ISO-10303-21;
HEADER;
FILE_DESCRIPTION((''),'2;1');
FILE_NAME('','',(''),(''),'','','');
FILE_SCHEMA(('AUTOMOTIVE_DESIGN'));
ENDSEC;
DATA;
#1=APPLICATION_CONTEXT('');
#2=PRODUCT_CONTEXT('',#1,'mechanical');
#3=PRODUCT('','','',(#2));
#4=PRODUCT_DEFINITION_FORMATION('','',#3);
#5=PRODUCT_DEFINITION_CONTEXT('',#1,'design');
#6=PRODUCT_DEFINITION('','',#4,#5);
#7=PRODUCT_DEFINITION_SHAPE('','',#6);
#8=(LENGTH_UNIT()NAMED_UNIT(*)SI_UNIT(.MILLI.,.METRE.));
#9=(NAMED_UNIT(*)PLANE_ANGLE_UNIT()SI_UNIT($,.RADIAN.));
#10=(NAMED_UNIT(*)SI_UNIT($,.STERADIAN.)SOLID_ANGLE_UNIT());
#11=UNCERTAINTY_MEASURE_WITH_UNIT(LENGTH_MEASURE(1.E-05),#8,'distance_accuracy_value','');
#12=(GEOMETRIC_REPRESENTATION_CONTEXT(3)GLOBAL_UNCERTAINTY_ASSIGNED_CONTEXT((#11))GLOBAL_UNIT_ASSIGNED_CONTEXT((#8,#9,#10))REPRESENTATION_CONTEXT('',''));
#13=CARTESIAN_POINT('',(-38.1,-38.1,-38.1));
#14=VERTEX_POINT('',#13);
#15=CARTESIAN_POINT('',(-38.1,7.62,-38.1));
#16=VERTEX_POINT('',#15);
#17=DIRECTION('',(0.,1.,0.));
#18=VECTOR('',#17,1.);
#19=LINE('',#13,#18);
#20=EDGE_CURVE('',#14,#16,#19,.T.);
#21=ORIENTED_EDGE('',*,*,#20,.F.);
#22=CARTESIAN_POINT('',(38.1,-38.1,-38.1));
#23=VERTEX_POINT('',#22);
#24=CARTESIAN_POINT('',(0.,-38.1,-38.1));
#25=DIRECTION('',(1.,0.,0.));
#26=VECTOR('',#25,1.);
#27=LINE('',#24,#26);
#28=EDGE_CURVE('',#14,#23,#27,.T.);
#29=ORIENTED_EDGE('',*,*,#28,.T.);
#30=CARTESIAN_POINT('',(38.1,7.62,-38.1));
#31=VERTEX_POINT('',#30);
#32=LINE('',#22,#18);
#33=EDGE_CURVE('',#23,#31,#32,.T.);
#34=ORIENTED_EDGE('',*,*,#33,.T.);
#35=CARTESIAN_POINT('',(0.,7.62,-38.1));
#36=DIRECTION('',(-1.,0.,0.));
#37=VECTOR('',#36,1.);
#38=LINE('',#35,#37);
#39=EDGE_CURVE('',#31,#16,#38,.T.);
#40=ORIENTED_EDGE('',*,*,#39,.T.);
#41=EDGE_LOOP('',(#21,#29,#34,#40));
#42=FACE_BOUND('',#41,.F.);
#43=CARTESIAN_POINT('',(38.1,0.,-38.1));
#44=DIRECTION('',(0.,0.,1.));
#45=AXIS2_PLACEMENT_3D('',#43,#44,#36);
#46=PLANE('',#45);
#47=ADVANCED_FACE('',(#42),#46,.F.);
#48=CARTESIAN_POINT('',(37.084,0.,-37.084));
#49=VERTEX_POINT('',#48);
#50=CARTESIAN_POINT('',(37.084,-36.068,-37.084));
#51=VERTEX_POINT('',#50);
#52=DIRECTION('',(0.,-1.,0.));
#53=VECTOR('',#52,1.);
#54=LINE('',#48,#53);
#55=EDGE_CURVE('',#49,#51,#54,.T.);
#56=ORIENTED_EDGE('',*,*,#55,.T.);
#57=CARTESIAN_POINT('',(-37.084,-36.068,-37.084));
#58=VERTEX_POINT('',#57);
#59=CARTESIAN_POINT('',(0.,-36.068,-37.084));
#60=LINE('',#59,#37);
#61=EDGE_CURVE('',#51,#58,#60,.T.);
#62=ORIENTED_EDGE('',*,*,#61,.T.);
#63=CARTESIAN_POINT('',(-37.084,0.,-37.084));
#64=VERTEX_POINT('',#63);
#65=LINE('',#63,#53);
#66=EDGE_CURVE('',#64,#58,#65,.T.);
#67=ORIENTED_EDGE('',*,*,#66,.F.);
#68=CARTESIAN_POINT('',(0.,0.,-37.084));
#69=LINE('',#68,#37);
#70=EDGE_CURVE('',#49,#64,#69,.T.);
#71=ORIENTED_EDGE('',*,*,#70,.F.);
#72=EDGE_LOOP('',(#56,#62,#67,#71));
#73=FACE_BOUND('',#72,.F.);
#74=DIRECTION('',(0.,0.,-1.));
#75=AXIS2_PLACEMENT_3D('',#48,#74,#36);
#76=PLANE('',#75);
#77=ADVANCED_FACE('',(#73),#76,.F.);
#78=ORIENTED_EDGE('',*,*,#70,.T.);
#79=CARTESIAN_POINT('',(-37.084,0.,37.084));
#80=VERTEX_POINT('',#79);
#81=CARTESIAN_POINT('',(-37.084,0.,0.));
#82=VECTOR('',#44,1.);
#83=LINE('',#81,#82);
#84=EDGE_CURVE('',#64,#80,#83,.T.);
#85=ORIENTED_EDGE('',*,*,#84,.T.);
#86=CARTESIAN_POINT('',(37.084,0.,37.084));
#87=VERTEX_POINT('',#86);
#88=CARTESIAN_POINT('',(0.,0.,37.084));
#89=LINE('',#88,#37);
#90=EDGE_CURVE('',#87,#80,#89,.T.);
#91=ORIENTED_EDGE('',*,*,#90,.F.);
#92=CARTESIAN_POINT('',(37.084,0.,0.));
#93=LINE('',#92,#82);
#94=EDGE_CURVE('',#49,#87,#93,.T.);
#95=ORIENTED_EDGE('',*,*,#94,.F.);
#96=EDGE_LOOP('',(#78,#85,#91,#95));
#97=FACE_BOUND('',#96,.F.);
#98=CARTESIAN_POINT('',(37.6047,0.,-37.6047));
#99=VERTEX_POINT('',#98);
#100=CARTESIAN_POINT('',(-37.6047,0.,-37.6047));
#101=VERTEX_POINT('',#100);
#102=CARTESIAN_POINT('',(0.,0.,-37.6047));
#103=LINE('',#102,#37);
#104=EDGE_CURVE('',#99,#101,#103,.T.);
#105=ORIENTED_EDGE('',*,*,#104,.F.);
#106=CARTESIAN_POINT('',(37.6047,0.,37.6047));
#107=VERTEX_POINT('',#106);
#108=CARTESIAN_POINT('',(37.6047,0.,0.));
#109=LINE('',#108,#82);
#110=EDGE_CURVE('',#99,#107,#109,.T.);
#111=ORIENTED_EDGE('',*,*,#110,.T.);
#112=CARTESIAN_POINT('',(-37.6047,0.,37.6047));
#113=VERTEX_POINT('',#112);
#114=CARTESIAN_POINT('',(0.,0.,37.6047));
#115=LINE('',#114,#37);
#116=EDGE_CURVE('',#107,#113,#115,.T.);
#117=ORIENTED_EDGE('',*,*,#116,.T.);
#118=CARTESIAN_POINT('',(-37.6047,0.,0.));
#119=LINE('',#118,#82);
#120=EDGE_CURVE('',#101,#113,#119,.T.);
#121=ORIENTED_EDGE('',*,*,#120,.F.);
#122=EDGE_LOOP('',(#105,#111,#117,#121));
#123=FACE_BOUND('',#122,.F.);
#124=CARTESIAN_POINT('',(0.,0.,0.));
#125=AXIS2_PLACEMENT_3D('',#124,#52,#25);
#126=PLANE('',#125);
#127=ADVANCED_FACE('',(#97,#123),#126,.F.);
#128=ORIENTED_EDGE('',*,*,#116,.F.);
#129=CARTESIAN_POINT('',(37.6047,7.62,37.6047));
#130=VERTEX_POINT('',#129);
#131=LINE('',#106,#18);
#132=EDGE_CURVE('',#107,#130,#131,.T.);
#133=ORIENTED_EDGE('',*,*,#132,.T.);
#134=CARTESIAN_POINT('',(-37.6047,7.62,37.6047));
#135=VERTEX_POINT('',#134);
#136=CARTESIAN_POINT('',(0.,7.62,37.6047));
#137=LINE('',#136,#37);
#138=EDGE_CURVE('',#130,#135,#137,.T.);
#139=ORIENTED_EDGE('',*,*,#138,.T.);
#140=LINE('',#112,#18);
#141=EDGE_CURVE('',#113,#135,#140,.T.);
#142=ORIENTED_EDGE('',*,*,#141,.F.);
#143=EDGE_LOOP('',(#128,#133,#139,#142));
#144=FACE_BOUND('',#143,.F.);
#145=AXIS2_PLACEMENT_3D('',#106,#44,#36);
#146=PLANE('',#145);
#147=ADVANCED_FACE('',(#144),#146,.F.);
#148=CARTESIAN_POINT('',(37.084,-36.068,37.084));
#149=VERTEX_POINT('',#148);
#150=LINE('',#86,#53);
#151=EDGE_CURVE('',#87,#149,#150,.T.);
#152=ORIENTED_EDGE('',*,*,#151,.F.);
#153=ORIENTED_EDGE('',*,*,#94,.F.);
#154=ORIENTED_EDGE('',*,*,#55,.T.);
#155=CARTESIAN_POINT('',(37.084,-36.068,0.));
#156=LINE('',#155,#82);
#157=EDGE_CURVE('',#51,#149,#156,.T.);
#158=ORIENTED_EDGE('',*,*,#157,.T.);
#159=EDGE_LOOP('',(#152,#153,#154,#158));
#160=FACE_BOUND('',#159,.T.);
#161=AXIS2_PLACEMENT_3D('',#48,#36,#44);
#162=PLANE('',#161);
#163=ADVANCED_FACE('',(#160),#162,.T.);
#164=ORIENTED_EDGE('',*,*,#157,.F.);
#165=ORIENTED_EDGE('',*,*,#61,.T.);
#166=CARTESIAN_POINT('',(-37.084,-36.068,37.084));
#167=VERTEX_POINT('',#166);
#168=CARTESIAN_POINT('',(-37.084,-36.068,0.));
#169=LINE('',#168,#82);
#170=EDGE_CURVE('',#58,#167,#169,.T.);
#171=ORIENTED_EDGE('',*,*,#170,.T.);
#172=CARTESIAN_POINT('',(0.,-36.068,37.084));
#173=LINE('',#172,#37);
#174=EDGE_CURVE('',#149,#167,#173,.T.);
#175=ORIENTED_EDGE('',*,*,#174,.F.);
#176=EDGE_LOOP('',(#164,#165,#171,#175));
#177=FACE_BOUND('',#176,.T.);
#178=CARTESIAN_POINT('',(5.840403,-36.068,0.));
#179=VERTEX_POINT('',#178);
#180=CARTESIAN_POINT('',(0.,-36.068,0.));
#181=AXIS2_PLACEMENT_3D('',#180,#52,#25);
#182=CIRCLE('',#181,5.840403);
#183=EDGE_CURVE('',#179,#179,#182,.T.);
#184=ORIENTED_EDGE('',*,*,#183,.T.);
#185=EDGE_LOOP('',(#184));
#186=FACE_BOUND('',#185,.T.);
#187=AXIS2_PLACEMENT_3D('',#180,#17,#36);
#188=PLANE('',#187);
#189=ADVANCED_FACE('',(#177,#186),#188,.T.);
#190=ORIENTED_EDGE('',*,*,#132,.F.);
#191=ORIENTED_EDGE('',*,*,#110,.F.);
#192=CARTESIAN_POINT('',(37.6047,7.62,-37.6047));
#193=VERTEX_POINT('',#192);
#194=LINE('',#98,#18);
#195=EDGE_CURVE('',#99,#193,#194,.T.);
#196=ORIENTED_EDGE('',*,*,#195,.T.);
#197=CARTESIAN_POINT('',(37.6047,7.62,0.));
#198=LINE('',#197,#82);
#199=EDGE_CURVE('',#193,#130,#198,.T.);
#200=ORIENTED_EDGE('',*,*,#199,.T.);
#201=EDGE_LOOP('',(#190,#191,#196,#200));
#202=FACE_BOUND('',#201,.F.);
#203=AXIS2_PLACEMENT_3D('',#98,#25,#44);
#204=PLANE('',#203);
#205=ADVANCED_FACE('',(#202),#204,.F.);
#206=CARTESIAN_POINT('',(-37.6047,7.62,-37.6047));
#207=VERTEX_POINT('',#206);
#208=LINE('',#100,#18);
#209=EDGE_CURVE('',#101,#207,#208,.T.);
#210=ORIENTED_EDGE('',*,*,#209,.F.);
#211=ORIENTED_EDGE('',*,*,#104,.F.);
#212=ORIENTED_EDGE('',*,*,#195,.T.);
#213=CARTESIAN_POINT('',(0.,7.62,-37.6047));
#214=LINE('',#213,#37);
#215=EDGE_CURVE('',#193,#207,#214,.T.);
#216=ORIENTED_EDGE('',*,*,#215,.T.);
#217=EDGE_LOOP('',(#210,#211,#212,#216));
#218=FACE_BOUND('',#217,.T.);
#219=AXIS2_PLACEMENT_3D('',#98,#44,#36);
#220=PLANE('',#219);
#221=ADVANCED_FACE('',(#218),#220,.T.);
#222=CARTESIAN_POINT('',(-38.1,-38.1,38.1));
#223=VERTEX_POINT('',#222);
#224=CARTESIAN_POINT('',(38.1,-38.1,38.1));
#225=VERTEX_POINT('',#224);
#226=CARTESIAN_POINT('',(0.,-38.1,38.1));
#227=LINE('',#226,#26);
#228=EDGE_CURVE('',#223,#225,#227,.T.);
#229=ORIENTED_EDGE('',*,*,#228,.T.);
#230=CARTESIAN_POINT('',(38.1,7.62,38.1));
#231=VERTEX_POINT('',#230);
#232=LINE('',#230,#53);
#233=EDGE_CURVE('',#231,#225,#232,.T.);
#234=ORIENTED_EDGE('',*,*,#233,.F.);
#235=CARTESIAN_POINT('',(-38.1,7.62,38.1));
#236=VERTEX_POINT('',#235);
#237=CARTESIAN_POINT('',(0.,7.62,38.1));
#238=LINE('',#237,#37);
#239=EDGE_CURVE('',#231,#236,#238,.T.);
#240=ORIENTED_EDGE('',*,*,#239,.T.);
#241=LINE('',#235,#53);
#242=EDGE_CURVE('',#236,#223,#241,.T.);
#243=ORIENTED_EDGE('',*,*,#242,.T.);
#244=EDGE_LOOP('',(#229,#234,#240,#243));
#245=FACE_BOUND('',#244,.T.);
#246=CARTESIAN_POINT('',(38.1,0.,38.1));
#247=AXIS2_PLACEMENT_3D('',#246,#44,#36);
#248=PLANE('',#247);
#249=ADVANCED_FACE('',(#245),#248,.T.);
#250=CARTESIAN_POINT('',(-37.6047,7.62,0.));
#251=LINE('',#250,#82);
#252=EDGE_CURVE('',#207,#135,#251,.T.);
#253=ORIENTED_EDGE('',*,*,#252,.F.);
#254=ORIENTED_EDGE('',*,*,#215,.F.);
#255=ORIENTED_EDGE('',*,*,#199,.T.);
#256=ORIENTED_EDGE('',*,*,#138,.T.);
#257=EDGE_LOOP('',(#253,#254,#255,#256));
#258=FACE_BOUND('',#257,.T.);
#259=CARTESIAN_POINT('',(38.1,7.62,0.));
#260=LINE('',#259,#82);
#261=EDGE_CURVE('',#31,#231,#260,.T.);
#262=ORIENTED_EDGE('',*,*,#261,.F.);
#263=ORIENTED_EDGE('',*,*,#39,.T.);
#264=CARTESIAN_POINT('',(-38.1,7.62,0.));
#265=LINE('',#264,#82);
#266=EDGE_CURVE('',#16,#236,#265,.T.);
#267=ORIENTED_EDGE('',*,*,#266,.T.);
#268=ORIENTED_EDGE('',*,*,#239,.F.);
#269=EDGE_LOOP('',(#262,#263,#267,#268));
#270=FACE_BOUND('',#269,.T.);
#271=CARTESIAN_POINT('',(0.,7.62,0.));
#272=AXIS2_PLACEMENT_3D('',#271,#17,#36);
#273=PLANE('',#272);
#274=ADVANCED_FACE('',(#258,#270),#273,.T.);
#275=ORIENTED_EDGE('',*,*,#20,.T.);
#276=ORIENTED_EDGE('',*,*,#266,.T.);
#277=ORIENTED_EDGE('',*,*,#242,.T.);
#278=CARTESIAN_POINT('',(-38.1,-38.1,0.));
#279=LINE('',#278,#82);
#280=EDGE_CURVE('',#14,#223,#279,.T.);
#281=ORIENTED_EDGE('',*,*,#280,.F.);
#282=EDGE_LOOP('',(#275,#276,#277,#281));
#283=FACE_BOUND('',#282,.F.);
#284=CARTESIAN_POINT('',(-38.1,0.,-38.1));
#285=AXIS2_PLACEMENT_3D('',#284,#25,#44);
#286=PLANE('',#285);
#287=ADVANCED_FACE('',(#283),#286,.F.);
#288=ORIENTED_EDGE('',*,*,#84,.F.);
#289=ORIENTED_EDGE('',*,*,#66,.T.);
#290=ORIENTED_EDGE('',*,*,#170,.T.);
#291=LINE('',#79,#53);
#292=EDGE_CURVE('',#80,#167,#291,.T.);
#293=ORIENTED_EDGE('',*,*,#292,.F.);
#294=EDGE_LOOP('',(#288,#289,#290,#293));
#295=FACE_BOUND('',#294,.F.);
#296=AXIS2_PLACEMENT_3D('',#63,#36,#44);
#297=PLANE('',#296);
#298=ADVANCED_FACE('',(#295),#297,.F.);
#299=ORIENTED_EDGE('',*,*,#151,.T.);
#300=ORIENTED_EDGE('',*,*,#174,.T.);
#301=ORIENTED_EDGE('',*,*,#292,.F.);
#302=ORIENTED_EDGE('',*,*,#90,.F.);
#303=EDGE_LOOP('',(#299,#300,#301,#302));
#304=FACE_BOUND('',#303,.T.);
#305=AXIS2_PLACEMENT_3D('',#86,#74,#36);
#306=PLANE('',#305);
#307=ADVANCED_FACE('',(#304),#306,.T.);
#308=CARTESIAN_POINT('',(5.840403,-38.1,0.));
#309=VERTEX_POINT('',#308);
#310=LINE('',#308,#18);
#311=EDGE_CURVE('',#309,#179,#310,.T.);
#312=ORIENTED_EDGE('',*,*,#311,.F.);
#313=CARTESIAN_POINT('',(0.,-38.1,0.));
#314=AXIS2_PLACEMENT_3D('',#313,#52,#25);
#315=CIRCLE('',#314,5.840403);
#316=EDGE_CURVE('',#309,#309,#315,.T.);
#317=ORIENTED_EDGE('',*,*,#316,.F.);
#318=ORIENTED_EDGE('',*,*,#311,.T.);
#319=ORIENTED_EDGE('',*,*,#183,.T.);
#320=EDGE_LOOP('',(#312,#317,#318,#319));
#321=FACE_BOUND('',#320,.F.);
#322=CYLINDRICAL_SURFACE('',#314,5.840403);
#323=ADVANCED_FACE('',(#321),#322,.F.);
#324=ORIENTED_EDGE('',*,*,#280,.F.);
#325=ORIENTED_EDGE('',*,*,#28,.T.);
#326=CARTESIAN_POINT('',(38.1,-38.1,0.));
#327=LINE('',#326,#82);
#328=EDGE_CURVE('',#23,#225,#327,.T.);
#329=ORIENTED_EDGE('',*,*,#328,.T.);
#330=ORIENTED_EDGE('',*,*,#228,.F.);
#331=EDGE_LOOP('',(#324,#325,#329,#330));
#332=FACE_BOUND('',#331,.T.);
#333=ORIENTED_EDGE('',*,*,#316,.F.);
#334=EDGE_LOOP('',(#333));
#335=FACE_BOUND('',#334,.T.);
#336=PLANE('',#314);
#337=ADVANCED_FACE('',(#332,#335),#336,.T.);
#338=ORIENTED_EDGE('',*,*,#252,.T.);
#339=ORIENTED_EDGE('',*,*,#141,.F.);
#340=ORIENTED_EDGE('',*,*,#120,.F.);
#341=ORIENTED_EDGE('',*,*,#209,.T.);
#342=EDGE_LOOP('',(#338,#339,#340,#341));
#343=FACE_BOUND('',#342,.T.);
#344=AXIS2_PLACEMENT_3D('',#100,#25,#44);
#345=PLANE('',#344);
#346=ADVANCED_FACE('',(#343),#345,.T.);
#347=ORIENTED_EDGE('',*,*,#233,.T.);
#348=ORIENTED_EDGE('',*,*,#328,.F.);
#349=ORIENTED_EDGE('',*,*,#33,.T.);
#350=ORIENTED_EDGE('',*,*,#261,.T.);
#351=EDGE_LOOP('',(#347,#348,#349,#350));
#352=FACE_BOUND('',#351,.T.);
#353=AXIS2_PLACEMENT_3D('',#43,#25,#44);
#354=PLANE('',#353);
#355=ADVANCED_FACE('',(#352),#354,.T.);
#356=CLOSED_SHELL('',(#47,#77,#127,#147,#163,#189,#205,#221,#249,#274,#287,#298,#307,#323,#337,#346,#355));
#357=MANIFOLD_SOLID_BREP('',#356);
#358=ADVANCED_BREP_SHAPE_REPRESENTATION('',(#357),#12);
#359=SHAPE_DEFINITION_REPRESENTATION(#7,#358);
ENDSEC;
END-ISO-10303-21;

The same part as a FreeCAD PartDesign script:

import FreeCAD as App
import Part
import Sketcher
from FreeCAD import Vector
Q = App.Units.Quantity


def add_polygon(sketch, points):
    """Adds a closed chain of lines whose ends are joined by coincident constraints."""
    first, n = sketch.GeometryCount, len(points)
    for a, b in zip(points, points[1:] + points[:1]):
        sketch.addGeometry(Part.LineSegment(App.Vector(*a, 0), App.Vector(*b, 0)), False)
    for i in range(n):
        sketch.addConstraint(Sketcher.Constraint("Coincident", first + i, 2, first + (i + 1) % n, 1))

doc = App.newDocument("Part")
params = doc.addObject("Spreadsheet::Sheet", "Params")
for row, (alias, value) in enumerate([
    ("sketch1_width", "3 in"),
    ("pad1_length", "1.5 in"),
    ("sketch2_width", "2.92 in"),
    ("pocket1_length", "1.42 in"),
    ("sketch3_width", "3 in"),
    ("sketch3_width2", "2.961 in"),
    ("pad2_length", "0.3 in"),
    ("pocket2_length", "0.5 in"),
], start=1):
    params.set(f"A{row}", alias)
    params.set(f"B{row}", "=" + value)
    params.setAlias(f"B{row}", alias)

body = doc.addObject("PartDesign::Body", "Body")

sketch1 = body.newObject("Sketcher::SketchObject", "Sketch")
sketch1.AttachmentSupport = (doc.getObject("XZ_Plane"), [""])
sketch1.MapMode = "FlatFace"
add_polygon(sketch1, [(-38.1, 38.1), (-38.1, -38.1), (38.1, -38.1), (38.1, 38.1)])
sketch1.addConstraint(Sketcher.Constraint("Vertical", 0))
sketch1.addConstraint(Sketcher.Constraint("Horizontal", 1))
sketch1.addConstraint(Sketcher.Constraint("Vertical", 2))
sketch1.addConstraint(Sketcher.Constraint("Horizontal", 3))
sketch1.addConstraint(Sketcher.Constraint("Symmetric", 0, 2, 2, 2, -1, 1))
sketch1.addConstraint(Sketcher.Constraint("Equal", 3, 0))
sketch1.addConstraint(Sketcher.Constraint("DistanceX", 1, 1, 1, 2, Q("3 in")))
sketch1.setExpression("Constraints[10]", "Params.sketch1_width")
pad1 = body.newObject("PartDesign::Pad", "Pad")
pad1.Profile = sketch1
pad1.setExpression("Length", "Params.pad1_length")

sketch2 = body.newObject("Sketcher::SketchObject", "Sketch001")
sketch2.AttachmentSupport = (doc.getObject("XZ_Plane"), [""])
sketch2.MapMode = "FlatFace"
add_polygon(sketch2, [(37.084, 37.084), (37.084, -37.084), (-37.084, -37.084), (-37.084, 37.084)])
sketch2.addConstraint(Sketcher.Constraint("Vertical", 0))
sketch2.addConstraint(Sketcher.Constraint("Horizontal", 1))
sketch2.addConstraint(Sketcher.Constraint("Vertical", 2))
sketch2.addConstraint(Sketcher.Constraint("Horizontal", 3))
sketch2.addConstraint(Sketcher.Constraint("Symmetric", 0, 2, 2, 2, -1, 1))
sketch2.addConstraint(Sketcher.Constraint("Equal", 3, 0))
sketch2.addConstraint(Sketcher.Constraint("DistanceX", 1, 2, 1, 1, Q("2.92 in")))
sketch2.setExpression("Constraints[10]", "Params.sketch2_width")
pocket1 = body.newObject("PartDesign::Pocket", "Pocket")
pocket1.Profile = sketch2
pocket1.setExpression("Length", "Params.pocket1_length")
pocket1.Reversed = True

sketch3 = body.newObject("Sketcher::SketchObject", "Sketch002")
sketch3.AttachmentSupport = (doc.getObject("XZ_Plane"), [""])
sketch3.MapMode = "FlatFace"
add_polygon(sketch3, [(38.1, 38.1), (38.1, -38.1), (-38.1, -38.1), (-38.1, 38.1)])
add_polygon(sketch3, [(-37.6047, -37.6047), (37.6047, -37.6047), (37.6047, 37.6047), (-37.6047, 37.6047)])
sketch3.addConstraint(Sketcher.Constraint("Vertical", 0))
sketch3.addConstraint(Sketcher.Constraint("Horizontal", 1))
sketch3.addConstraint(Sketcher.Constraint("Vertical", 2))
sketch3.addConstraint(Sketcher.Constraint("Horizontal", 3))
sketch3.addConstraint(Sketcher.Constraint("Horizontal", 4))
sketch3.addConstraint(Sketcher.Constraint("Vertical", 5))
sketch3.addConstraint(Sketcher.Constraint("Horizontal", 6))
sketch3.addConstraint(Sketcher.Constraint("Vertical", 7))
sketch3.addConstraint(Sketcher.Constraint("Symmetric", 0, 2, 2, 2, -1, 1))
sketch3.addConstraint(Sketcher.Constraint("Symmetric", 4, 2, 6, 2, -1, 1))
sketch3.addConstraint(Sketcher.Constraint("Equal", 3, 0))
sketch3.addConstraint(Sketcher.Constraint("Equal", 6, 5))
sketch3.addConstraint(Sketcher.Constraint("DistanceX", 1, 2, 1, 1, Q("3 in")))
sketch3.addConstraint(Sketcher.Constraint("DistanceX", 4, 1, 4, 2, Q("2.961 in")))
sketch3.setExpression("Constraints[20]", "Params.sketch3_width")
sketch3.setExpression("Constraints[21]", "Params.sketch3_width2")
pad2 = body.newObject("PartDesign::Pad", "Pad001")
pad2.Profile = sketch3
pad2.setExpression("Length", "Params.pad2_length")
pad2.Reversed = True

sketch4 = body.newObject("Sketcher::SketchObject", "Sketch003")
sketch4.AttachmentSupport = (doc.getObject("XZ_Plane"), [""])
sketch4.MapMode = "FlatFace"
sketch4.AttachmentOffset = App.Placement(Vector(0, 0, 1.5 * 25.4), App.Rotation())
sketch4.addGeometry(Part.Circle(Vector(0, 0, 0), Vector(0, 0, 1), 5.840403), False)
sketch4.addConstraint(Sketcher.Constraint("Coincident", 0, 3, -1, 1))
sketch4.addConstraint(Sketcher.Constraint("Diameter", 0, Q("11.680806 mm")))
pocket2 = body.newObject("PartDesign::Pocket", "Pocket001")
pocket2.Profile = sketch4
pocket2.setExpression("Length", "Params.pocket2_length")

doc.recompute()
